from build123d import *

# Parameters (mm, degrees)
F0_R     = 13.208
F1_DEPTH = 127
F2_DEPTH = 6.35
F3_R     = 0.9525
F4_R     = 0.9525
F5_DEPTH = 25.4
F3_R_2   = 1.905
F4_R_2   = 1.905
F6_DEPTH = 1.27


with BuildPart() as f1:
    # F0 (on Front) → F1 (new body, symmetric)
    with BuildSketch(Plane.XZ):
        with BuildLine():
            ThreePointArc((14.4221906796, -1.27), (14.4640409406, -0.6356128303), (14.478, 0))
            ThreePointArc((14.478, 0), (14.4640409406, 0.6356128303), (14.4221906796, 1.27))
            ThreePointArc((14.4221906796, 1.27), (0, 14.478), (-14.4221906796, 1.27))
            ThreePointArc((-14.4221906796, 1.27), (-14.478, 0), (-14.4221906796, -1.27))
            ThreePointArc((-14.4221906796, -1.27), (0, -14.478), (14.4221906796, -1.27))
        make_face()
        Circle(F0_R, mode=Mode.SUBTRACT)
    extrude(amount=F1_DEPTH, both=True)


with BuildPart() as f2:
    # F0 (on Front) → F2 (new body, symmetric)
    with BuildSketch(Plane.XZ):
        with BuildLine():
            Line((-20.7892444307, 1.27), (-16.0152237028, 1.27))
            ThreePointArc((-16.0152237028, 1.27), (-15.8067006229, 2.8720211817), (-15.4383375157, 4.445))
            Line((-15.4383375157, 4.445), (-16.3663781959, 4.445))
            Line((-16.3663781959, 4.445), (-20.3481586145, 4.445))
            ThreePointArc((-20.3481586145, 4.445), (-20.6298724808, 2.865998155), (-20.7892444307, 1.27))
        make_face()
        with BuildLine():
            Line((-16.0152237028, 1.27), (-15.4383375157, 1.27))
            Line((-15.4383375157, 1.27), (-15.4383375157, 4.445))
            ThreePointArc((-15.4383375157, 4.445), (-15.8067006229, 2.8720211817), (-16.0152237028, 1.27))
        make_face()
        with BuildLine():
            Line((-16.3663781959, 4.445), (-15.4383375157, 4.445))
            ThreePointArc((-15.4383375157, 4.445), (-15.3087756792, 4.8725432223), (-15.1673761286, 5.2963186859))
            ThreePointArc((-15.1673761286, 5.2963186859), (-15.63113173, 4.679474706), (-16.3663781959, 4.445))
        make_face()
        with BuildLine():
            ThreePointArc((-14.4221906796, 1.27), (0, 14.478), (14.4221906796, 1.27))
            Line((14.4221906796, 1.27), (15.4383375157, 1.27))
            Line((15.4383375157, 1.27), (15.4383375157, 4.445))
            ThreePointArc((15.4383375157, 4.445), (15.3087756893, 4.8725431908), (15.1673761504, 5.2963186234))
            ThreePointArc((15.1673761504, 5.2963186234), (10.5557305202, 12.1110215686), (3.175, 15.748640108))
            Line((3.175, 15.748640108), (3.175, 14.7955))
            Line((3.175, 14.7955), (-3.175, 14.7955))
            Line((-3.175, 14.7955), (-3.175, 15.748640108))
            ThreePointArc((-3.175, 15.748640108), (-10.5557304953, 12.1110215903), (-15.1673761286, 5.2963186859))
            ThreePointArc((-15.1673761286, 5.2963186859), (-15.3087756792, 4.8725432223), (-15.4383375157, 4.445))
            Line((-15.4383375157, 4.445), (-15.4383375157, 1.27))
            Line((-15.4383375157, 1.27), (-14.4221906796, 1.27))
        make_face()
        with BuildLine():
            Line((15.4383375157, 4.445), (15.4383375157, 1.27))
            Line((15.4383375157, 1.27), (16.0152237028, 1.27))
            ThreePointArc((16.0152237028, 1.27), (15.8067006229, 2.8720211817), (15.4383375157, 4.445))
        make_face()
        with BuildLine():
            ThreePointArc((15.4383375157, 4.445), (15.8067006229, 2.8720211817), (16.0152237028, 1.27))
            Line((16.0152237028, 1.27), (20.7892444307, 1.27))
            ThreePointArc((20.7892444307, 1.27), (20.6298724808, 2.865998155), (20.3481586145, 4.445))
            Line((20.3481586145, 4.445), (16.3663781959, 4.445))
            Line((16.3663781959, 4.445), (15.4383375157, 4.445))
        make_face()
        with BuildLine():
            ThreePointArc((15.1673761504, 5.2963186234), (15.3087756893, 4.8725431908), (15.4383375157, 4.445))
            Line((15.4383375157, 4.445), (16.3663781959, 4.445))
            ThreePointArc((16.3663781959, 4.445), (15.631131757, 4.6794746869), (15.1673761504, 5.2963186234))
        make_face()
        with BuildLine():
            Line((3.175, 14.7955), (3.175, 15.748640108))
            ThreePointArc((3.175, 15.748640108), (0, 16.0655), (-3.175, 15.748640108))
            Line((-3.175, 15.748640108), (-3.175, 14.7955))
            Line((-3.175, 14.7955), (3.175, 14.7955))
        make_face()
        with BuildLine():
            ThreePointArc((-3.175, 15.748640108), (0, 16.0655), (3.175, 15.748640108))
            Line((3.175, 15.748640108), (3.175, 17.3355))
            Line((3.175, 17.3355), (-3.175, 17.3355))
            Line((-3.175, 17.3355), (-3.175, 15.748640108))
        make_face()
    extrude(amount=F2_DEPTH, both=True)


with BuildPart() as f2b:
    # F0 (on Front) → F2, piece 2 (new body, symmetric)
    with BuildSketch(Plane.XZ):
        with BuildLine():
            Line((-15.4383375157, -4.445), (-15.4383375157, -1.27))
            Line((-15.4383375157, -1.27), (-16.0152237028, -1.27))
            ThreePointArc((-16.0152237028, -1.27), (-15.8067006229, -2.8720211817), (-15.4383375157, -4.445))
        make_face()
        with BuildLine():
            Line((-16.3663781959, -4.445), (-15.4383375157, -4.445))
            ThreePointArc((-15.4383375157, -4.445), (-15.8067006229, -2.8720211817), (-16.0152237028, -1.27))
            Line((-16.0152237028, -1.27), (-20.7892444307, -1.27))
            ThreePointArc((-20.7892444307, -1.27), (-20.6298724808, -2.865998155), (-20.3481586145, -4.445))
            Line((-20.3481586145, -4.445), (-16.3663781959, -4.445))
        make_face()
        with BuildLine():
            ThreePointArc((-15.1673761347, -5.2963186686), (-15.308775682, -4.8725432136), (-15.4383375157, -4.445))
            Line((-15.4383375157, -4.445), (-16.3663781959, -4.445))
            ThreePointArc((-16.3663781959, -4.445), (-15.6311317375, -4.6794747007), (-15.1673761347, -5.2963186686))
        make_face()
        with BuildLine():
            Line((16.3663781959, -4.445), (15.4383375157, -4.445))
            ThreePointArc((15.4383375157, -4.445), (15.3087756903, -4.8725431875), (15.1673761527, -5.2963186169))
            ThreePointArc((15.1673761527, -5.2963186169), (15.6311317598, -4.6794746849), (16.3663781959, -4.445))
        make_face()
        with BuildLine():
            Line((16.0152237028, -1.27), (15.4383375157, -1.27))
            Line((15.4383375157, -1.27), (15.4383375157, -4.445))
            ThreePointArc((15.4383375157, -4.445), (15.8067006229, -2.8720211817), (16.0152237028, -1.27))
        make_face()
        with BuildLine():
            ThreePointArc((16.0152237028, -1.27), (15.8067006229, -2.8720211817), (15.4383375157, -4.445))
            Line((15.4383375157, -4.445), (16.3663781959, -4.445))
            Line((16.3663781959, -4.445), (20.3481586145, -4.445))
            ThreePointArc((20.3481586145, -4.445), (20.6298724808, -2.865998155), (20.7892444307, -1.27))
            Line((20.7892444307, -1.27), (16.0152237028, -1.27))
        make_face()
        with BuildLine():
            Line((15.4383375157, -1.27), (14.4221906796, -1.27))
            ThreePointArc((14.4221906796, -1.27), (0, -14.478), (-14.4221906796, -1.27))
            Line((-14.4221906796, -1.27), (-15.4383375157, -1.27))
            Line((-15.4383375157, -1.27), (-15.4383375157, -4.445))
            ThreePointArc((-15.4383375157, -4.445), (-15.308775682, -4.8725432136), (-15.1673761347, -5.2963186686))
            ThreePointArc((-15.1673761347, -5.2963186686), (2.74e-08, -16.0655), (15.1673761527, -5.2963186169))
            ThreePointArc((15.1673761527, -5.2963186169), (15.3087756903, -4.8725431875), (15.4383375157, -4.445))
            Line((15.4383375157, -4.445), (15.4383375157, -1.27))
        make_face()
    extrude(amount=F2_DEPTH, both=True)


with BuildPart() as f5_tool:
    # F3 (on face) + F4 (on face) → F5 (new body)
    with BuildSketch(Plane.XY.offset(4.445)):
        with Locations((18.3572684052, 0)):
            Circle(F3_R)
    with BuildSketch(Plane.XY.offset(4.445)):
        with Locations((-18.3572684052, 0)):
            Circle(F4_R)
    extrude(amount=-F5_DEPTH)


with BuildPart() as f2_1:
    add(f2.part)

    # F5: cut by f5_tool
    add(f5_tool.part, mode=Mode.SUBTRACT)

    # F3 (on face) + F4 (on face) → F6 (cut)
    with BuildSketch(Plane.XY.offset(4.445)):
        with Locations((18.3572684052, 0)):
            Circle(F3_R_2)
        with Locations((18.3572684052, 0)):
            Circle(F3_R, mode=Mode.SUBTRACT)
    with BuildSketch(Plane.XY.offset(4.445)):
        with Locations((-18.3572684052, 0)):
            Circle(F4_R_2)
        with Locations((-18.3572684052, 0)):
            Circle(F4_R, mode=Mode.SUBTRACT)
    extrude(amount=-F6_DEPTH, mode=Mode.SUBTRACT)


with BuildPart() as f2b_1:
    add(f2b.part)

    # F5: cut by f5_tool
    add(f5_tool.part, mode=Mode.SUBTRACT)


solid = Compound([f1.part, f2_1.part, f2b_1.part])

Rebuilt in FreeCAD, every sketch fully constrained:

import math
import FreeCAD as App
import Part
import Sketcher
from FreeCAD import Vector
Q = App.Units.Quantity

doc = App.newDocument("Part")
params = doc.addObject("Spreadsheet::Sheet", "Params")
for row, (alias, value) in enumerate([
    ("sketch1_diameter", "1.04 in"),
    ("sketch1_radius", "0.57 in"),
    ("pad1_length", "10 in"),
    ("sketch2_radius", "0.57 in"),
    ("sketch2_radius2", "0.82 in"),
    ("sketch2_radius3", "0.05 in"),
    ("sketch2_width", "0.25 in"),
    ("pad2_length", "0.5 in"),
    ("sketch3_radius", "0.82 in"),
    ("sketch3_radius2", "0.05 in"),
    ("sketch3_radius3", "0.57 in"),
    ("pad3_length", "0.5 in"),
    ("sketch4_diameter", "0.075 in"),
    ("pad4_length", "1 in"),
    ("sketch5_diameter", "0.15 in"),
    ("sketch5_diameter2", "0.075 in"),
    ("pocket1_length", "0.05 in"),
], start=1):
    params.set(f"A{row}", alias)
    params.set(f"B{row}", "=" + value)
    params.setAlias(f"B{row}", alias)

body = doc.addObject("PartDesign::Body", "Body")

sketch1 = body.newObject("Sketcher::SketchObject", "Sketch")
sketch1.AttachmentSupport = (doc.getObject("XZ_Plane"), [""])
sketch1.MapMode = "FlatFace"
sketch1.addGeometry([
    Part.ArcOfCircle(Part.Circle(Vector(0, 0, 0), Vector(0, 0, 1), 14.5), math.radians(-5.03), math.radians(0)),
    Part.ArcOfCircle(Part.Circle(Vector(0, 0, 0), Vector(0, 0, 1), 14.5), math.radians(0), math.radians(5.03)),
    Part.ArcOfCircle(Part.Circle(Vector(0, 0, 0), Vector(0, 0, 1), 14.5), math.radians(5), math.radians(175)),
    Part.ArcOfCircle(Part.Circle(Vector(0, 0, 0), Vector(0, 0, 1), 14.5), math.radians(174.97), math.radians(185.03)),
    Part.ArcOfCircle(Part.Circle(Vector(0, 0, 0), Vector(0, 0, 1), 14.5), math.radians(-175), math.radians(-5)),
    Part.Circle(Vector(0, 0, 0), Vector(0, 0, 1), 13.2),
], False)
sketch1.addConstraint([
    Sketcher.Constraint("Tangent", 0, 2, 1, 1),
    Sketcher.Constraint("Tangent", 1, 2, 2, 1),
    Sketcher.Constraint("Tangent", 2, 2, 3, 1),
    Sketcher.Constraint("Tangent", 3, 2, 4, 1),
    Sketcher.Constraint("Tangent", 4, 2, 0, 1),
    Sketcher.Constraint("Coincident", 0, 3, -1, 1),
    Sketcher.Constraint("Coincident", 2, 3, -1, 1),
    Sketcher.Constraint("Coincident", 5, 3, -1, 1),
    Sketcher.Constraint("PointOnObject", 0, 2, -1),
    Sketcher.Constraint("Horizontal", 1, 2, 2, 2),
    Sketcher.Constraint("Horizontal", 3, 2, 4, 2),
    Sketcher.Constraint("Vertical", 2, 2, 3, 2),
    Sketcher.Constraint("Diameter", 5, Q("1.04 in")),
    Sketcher.Constraint("Radius", 0, Q("0.57 in")),
    Sketcher.Constraint("DistanceY", 3, 2, 2, 2, Q("0.1 in")),
])
sketch1.setExpression("Constraints[12]", "Params.sketch1_diameter")
sketch1.setExpression("Constraints[13]", "Params.sketch1_radius")
pad1 = body.newObject("PartDesign::Pad", "Pad")
pad1.Profile = sketch1
pad1.setExpression("Length", "Params.pad1_length")
pad1.Midplane = True
body2 = doc.addObject("PartDesign::Body", "Body001")

sketch2 = body2.newObject("Sketcher::SketchObject", "Sketch001")
sketch2.AttachmentSupport = (doc.getObject("XZ_Plane001"), [""])
sketch2.MapMode = "FlatFace"
sketch2.addGeometry([
    Part.LineSegment(Vector(-20.8, 1.3, 0), Vector(-14.4, 1.3, 0)),
    Part.ArcOfCircle(Part.Circle(Vector(0, 0, 0), Vector(0, 0, 1), 14.5), math.radians(5), math.radians(175)),
    Part.LineSegment(Vector(14.4, 1.3, 0), Vector(20.8, 1.3, 0)),
    Part.ArcOfCircle(Part.Circle(Vector(0, 0, 0), Vector(0, 0, 1), 20.8), math.radians(3.5), math.radians(12.32)),
    Part.LineSegment(Vector(20.3, 4.4, 0), Vector(16.4, 4.4, 0)),
    Part.ArcOfCircle(Part.Circle(Vector(16.4, 5.7, 0), Vector(0, 0, 1), 1.3), math.radians(-161), math.radians(-90)),
    Part.ArcOfCircle(Part.Circle(Vector(0, 0, 0), Vector(0, 0, 1), 16.1), math.radians(19), math.radians(79)),
    Part.LineSegment(Vector(3.2, 15.7, 0), Vector(3.2, 17.3, 0)),
    Part.LineSegment(Vector(3.2, 17.3, 0), Vector(-3.2, 17.3, 0)),
    Part.LineSegment(Vector(-3.2, 17.3, 0), Vector(-3.2, 15.7, 0)),
    Part.ArcOfCircle(Part.Circle(Vector(0, 0, 0), Vector(0, 0, 1), 16.1), math.radians(101), math.radians(161)),
    Part.ArcOfCircle(Part.Circle(Vector(-16.4, 5.7, 0), Vector(0, 0, 1), 1.3), math.radians(-90), math.radians(-19)),
    Part.LineSegment(Vector(-16.4, 4.4, 0), Vector(-20.3, 4.4, 0)),
    Part.ArcOfCircle(Part.Circle(Vector(0, 0, 0), Vector(0, 0, 1), 20.8), math.radians(167.68), math.radians(176.5)),
], False)
sketch2.addConstraint([
    Sketcher.Constraint("Coincident", 0, 2, 1, 2),
    Sketcher.Constraint("Coincident", 1, 1, 2, 1),
    Sketcher.Constraint("Coincident", 2, 2, 3, 1),
    Sketcher.Constraint("Coincident", 3, 2, 4, 1),
    Sketcher.Constraint("Tangent", 4, 2, 5, 2),
    Sketcher.Constraint("Tangent", 5, 1, 6, 1),
    Sketcher.Constraint("Coincident", 6, 2, 7, 1),
    Sketcher.Constraint("Coincident", 7, 2, 8, 1),
    Sketcher.Constraint("Coincident", 8, 2, 9, 1),
    Sketcher.Constraint("Coincident", 9, 2, 10, 1),
    Sketcher.Constraint("Tangent", 10, 2, 11, 2),
    Sketcher.Constraint("Tangent", 11, 1, 12, 1),
    Sketcher.Constraint("Coincident", 12, 2, 13, 1),
    Sketcher.Constraint("Coincident", 13, 2, 0, 1),
    Sketcher.Constraint("Horizontal", 0),
    Sketcher.Constraint("Horizontal", 2),
    Sketcher.Constraint("Horizontal", 4),
    Sketcher.Constraint("Vertical", 7),
    Sketcher.Constraint("Horizontal", 8),
    Sketcher.Constraint("Vertical", 9),
    Sketcher.Constraint("Horizontal", 12),
    Sketcher.Constraint("Coincident", 1, 3, -1, 1),
    Sketcher.Constraint("Coincident", 3, 3, -1, 1),
    Sketcher.Constraint("Coincident", 6, 3, -1, 1),
    Sketcher.Constraint("Coincident", 10, 3, -1, 1),
    Sketcher.Constraint("Coincident", 13, 3, -1, 1),
    Sketcher.Constraint("Equal", 6, 10),
    Sketcher.Constraint("Equal", 5, 11),
    Sketcher.Constraint("Equal", 3, 13),
    Sketcher.Constraint("Horizontal", 5, 3, 11, 3),
    Sketcher.Constraint("Horizontal", 0, 2, 1, 1),
    Sketcher.Constraint("Horizontal", 6, 2, 9, 2),
    Sketcher.Constraint("Radius", 1, Q("0.57 in")),
    Sketcher.Constraint("Radius", 3, Q("0.82 in")),
    Sketcher.Constraint("Radius", 5, Q("0.05 in")),
    Sketcher.Constraint("DistanceX", 8, 2, 8, 1, Q("0.25 in")),
    Sketcher.Constraint("Radius", 6, Q("0.6325 in")),
    Sketcher.Constraint("DistanceY", -1, 1, 0, 2, Q("0.05 in")),
    Sketcher.Constraint("DistanceY", -1, 1, 5, 3, Q("0.225 in")),
    Sketcher.Constraint("DistanceY", -1, 1, 7, 2, Q("0.6825 in")),
])
sketch2.setExpression("Constraints[32]", "Params.sketch2_radius")
sketch2.setExpression("Constraints[33]", "Params.sketch2_radius2")
sketch2.setExpression("Constraints[34]", "Params.sketch2_radius3")
sketch2.setExpression("Constraints[35]", "Params.sketch2_width")
pad2 = body2.newObject("PartDesign::Pad", "Pad001")
pad2.Profile = sketch2
pad2.setExpression("Length", "Params.pad2_length")
pad2.Midplane = True
body3 = doc.addObject("PartDesign::Body", "Body002")

sketch3 = body3.newObject("Sketcher::SketchObject", "Sketch002")
sketch3.AttachmentSupport = (doc.getObject("XZ_Plane002"), [""])
sketch3.MapMode = "FlatFace"
sketch3.addGeometry([
    Part.ArcOfCircle(Part.Circle(Vector(0, 0, 0), Vector(0, 0, 1), 20.8), math.radians(-176.5), math.radians(-167.68)),
    Part.LineSegment(Vector(-20.3, -4.4, 0), Vector(-16.4, -4.4, 0)),
    Part.ArcOfCircle(Part.Circle(Vector(-16.4, -5.7, 0), Vector(0, 0, 1), 1.3), math.radians(19), math.radians(90)),
    Part.ArcOfCircle(Part.Circle(Vector(0, 0, 0), Vector(0, 0, 1), 16.1), math.radians(-161), math.radians(-19)),
    Part.ArcOfCircle(Part.Circle(Vector(16.4, -5.7, 0), Vector(0, 0, 1), 1.3), math.radians(90), math.radians(161)),
    Part.LineSegment(Vector(16.4, -4.4, 0), Vector(20.3, -4.4, 0)),
    Part.ArcOfCircle(Part.Circle(Vector(0, 0, 0), Vector(0, 0, 1), 20.8), math.radians(-12.32), math.radians(-3.5)),
    Part.LineSegment(Vector(20.8, -1.3, 0), Vector(14.4, -1.3, 0)),
    Part.ArcOfCircle(Part.Circle(Vector(0, 0, 0), Vector(0, 0, 1), 14.5), math.radians(-175), math.radians(-5)),
    Part.LineSegment(Vector(-14.4, -1.3, 0), Vector(-20.8, -1.3, 0)),
], False)
sketch3.addConstraint([
    Sketcher.Constraint("Coincident", 0, 2, 1, 1),
    Sketcher.Constraint("Tangent", 1, 2, 2, 2),
    Sketcher.Constraint("Tangent", 2, 1, 3, 1),
    Sketcher.Constraint("Tangent", 3, 2, 4, 2),
    Sketcher.Constraint("Tangent", 4, 1, 5, 1),
    Sketcher.Constraint("Coincident", 5, 2, 6, 1),
    Sketcher.Constraint("Coincident", 6, 2, 7, 1),
    Sketcher.Constraint("Coincident", 7, 2, 8, 2),
    Sketcher.Constraint("Coincident", 8, 1, 9, 1),
    Sketcher.Constraint("Coincident", 9, 2, 0, 1),
    Sketcher.Constraint("Horizontal", 1),
    Sketcher.Constraint("Horizontal", 5),
    Sketcher.Constraint("Horizontal", 7),
    Sketcher.Constraint("Horizontal", 9),
    Sketcher.Constraint("Coincident", 0, 3, -1, 1),
    Sketcher.Constraint("Coincident", 3, 3, -1, 1),
    Sketcher.Constraint("Coincident", 6, 3, -1, 1),
    Sketcher.Constraint("Coincident", 8, 3, -1, 1),
    Sketcher.Constraint("Equal", 2, 4),
    Sketcher.Constraint("Equal", 0, 6),
    Sketcher.Constraint("Horizontal", 2, 3, 4, 3),
    Sketcher.Constraint("Horizontal", 7, 2, 8, 1),
    Sketcher.Constraint("Radius", 0, Q("0.82 in")),
    Sketcher.Constraint("Radius", 2, Q("0.05 in")),
    Sketcher.Constraint("Radius", 8, Q("0.57 in")),
    Sketcher.Constraint("Radius", 3, Q("0.6325 in")),
    Sketcher.Constraint("DistanceY", 6, 2, -1, 1, Q("0.05 in")),
    Sketcher.Constraint("DistanceY", 2, 3, -1, 1, Q("0.225 in")),
])
sketch3.setExpression("Constraints[22]", "Params.sketch3_radius")
sketch3.setExpression("Constraints[23]", "Params.sketch3_radius2")
sketch3.setExpression("Constraints[24]", "Params.sketch3_radius3")
pad3 = body3.newObject("PartDesign::Pad", "Pad002")
pad3.Profile = sketch3
pad3.setExpression("Length", "Params.pad3_length")
pad3.Midplane = True
body4 = doc.addObject("PartDesign::Body", "Body003")
body4.AllowCompound = True

sketch4 = body4.newObject("Sketcher::SketchObject", "Sketch003")
sketch4.AttachmentSupport = (doc.getObject("XY_Plane003"), [""])
sketch4.MapMode = "FlatFace"
sketch4.AttachmentOffset = App.Placement(Vector(0, 0, 0.175 * 25.4), App.Rotation())
sketch4.addGeometry([
    Part.Circle(Vector(18.4, 0, 0), Vector(0, 0, 1), 1),
    Part.Circle(Vector(-18.4, 0, 0), Vector(0, 0, 1), 1),
], False)
sketch4.addConstraint([
    Sketcher.Constraint("Equal", 0, 1),
    Sketcher.Constraint("Symmetric", 0, 3, 1, 3, -1, 1),
    Sketcher.Constraint("PointOnObject", 0, 3, -1),
    Sketcher.Constraint("Diameter", 0, Q("0.075 in")),
    Sketcher.Constraint("DistanceX", -1, 1, 0, 3, Q("18.357268 mm")),
])
sketch4.setExpression("Constraints[3]", "Params.sketch4_diameter")
pad4 = body4.newObject("PartDesign::Pad", "Pad003")
pad4.Profile = sketch4
pad4.setExpression("Length", "Params.pad4_length")
pad4.Reversed = True
doc.recompute()

body5 = doc.addObject("PartDesign::Body", "Body004")
body5.BaseFeature = body4
boolean = body2.newObject("PartDesign::Boolean", "Boolean")
boolean.Type = "Cut"
boolean.addObjects([body5])
doc.recompute()

sketch5 = body2.newObject("Sketcher::SketchObject", "Sketch004")
sketch5.AttachmentSupport = (doc.getObject("XY_Plane001"), [""])
sketch5.MapMode = "FlatFace"
sketch5.AttachmentOffset = App.Placement(Vector(0, 0, 0.175 * 25.4), App.Rotation())
sketch5.addGeometry([
    Part.Circle(Vector(18.4, 0, 0), Vector(0, 0, 1), 1.9),
    Part.Circle(Vector(18.4, 0, 0), Vector(0, 0, 1), 1),
    Part.Circle(Vector(-18.4, 0, 0), Vector(0, 0, 1), 1.9),
    Part.Circle(Vector(-18.4, 0, 0), Vector(0, 0, 1), 1),
], False)
sketch5.addConstraint([
    Sketcher.Constraint("Coincident", 1, 3, 0, 3),
    Sketcher.Constraint("Coincident", 3, 3, 2, 3),
    Sketcher.Constraint("Equal", 0, 2),
    Sketcher.Constraint("Equal", 1, 3),
    Sketcher.Constraint("Symmetric", 0, 3, 2, 3, -1, 1),
    Sketcher.Constraint("PointOnObject", 0, 3, -1),
    Sketcher.Constraint("Diameter", 0, Q("0.15 in")),
    Sketcher.Constraint("Diameter", 1, Q("0.075 in")),
    Sketcher.Constraint("DistanceX", -1, 1, 0, 3, Q("18.357268 mm")),
])
sketch5.setExpression("Constraints[6]", "Params.sketch5_diameter")
sketch5.setExpression("Constraints[7]", "Params.sketch5_diameter2")
pocket1 = body2.newObject("PartDesign::Pocket", "Pocket")
pocket1.Profile = sketch5
pocket1.setExpression("Length", "Params.pocket1_length")
doc.recompute()

boolean2 = body3.newObject("PartDesign::Boolean", "Boolean001")
boolean2.Type = "Cut"
boolean2.addObjects([body4])

doc.recompute()
